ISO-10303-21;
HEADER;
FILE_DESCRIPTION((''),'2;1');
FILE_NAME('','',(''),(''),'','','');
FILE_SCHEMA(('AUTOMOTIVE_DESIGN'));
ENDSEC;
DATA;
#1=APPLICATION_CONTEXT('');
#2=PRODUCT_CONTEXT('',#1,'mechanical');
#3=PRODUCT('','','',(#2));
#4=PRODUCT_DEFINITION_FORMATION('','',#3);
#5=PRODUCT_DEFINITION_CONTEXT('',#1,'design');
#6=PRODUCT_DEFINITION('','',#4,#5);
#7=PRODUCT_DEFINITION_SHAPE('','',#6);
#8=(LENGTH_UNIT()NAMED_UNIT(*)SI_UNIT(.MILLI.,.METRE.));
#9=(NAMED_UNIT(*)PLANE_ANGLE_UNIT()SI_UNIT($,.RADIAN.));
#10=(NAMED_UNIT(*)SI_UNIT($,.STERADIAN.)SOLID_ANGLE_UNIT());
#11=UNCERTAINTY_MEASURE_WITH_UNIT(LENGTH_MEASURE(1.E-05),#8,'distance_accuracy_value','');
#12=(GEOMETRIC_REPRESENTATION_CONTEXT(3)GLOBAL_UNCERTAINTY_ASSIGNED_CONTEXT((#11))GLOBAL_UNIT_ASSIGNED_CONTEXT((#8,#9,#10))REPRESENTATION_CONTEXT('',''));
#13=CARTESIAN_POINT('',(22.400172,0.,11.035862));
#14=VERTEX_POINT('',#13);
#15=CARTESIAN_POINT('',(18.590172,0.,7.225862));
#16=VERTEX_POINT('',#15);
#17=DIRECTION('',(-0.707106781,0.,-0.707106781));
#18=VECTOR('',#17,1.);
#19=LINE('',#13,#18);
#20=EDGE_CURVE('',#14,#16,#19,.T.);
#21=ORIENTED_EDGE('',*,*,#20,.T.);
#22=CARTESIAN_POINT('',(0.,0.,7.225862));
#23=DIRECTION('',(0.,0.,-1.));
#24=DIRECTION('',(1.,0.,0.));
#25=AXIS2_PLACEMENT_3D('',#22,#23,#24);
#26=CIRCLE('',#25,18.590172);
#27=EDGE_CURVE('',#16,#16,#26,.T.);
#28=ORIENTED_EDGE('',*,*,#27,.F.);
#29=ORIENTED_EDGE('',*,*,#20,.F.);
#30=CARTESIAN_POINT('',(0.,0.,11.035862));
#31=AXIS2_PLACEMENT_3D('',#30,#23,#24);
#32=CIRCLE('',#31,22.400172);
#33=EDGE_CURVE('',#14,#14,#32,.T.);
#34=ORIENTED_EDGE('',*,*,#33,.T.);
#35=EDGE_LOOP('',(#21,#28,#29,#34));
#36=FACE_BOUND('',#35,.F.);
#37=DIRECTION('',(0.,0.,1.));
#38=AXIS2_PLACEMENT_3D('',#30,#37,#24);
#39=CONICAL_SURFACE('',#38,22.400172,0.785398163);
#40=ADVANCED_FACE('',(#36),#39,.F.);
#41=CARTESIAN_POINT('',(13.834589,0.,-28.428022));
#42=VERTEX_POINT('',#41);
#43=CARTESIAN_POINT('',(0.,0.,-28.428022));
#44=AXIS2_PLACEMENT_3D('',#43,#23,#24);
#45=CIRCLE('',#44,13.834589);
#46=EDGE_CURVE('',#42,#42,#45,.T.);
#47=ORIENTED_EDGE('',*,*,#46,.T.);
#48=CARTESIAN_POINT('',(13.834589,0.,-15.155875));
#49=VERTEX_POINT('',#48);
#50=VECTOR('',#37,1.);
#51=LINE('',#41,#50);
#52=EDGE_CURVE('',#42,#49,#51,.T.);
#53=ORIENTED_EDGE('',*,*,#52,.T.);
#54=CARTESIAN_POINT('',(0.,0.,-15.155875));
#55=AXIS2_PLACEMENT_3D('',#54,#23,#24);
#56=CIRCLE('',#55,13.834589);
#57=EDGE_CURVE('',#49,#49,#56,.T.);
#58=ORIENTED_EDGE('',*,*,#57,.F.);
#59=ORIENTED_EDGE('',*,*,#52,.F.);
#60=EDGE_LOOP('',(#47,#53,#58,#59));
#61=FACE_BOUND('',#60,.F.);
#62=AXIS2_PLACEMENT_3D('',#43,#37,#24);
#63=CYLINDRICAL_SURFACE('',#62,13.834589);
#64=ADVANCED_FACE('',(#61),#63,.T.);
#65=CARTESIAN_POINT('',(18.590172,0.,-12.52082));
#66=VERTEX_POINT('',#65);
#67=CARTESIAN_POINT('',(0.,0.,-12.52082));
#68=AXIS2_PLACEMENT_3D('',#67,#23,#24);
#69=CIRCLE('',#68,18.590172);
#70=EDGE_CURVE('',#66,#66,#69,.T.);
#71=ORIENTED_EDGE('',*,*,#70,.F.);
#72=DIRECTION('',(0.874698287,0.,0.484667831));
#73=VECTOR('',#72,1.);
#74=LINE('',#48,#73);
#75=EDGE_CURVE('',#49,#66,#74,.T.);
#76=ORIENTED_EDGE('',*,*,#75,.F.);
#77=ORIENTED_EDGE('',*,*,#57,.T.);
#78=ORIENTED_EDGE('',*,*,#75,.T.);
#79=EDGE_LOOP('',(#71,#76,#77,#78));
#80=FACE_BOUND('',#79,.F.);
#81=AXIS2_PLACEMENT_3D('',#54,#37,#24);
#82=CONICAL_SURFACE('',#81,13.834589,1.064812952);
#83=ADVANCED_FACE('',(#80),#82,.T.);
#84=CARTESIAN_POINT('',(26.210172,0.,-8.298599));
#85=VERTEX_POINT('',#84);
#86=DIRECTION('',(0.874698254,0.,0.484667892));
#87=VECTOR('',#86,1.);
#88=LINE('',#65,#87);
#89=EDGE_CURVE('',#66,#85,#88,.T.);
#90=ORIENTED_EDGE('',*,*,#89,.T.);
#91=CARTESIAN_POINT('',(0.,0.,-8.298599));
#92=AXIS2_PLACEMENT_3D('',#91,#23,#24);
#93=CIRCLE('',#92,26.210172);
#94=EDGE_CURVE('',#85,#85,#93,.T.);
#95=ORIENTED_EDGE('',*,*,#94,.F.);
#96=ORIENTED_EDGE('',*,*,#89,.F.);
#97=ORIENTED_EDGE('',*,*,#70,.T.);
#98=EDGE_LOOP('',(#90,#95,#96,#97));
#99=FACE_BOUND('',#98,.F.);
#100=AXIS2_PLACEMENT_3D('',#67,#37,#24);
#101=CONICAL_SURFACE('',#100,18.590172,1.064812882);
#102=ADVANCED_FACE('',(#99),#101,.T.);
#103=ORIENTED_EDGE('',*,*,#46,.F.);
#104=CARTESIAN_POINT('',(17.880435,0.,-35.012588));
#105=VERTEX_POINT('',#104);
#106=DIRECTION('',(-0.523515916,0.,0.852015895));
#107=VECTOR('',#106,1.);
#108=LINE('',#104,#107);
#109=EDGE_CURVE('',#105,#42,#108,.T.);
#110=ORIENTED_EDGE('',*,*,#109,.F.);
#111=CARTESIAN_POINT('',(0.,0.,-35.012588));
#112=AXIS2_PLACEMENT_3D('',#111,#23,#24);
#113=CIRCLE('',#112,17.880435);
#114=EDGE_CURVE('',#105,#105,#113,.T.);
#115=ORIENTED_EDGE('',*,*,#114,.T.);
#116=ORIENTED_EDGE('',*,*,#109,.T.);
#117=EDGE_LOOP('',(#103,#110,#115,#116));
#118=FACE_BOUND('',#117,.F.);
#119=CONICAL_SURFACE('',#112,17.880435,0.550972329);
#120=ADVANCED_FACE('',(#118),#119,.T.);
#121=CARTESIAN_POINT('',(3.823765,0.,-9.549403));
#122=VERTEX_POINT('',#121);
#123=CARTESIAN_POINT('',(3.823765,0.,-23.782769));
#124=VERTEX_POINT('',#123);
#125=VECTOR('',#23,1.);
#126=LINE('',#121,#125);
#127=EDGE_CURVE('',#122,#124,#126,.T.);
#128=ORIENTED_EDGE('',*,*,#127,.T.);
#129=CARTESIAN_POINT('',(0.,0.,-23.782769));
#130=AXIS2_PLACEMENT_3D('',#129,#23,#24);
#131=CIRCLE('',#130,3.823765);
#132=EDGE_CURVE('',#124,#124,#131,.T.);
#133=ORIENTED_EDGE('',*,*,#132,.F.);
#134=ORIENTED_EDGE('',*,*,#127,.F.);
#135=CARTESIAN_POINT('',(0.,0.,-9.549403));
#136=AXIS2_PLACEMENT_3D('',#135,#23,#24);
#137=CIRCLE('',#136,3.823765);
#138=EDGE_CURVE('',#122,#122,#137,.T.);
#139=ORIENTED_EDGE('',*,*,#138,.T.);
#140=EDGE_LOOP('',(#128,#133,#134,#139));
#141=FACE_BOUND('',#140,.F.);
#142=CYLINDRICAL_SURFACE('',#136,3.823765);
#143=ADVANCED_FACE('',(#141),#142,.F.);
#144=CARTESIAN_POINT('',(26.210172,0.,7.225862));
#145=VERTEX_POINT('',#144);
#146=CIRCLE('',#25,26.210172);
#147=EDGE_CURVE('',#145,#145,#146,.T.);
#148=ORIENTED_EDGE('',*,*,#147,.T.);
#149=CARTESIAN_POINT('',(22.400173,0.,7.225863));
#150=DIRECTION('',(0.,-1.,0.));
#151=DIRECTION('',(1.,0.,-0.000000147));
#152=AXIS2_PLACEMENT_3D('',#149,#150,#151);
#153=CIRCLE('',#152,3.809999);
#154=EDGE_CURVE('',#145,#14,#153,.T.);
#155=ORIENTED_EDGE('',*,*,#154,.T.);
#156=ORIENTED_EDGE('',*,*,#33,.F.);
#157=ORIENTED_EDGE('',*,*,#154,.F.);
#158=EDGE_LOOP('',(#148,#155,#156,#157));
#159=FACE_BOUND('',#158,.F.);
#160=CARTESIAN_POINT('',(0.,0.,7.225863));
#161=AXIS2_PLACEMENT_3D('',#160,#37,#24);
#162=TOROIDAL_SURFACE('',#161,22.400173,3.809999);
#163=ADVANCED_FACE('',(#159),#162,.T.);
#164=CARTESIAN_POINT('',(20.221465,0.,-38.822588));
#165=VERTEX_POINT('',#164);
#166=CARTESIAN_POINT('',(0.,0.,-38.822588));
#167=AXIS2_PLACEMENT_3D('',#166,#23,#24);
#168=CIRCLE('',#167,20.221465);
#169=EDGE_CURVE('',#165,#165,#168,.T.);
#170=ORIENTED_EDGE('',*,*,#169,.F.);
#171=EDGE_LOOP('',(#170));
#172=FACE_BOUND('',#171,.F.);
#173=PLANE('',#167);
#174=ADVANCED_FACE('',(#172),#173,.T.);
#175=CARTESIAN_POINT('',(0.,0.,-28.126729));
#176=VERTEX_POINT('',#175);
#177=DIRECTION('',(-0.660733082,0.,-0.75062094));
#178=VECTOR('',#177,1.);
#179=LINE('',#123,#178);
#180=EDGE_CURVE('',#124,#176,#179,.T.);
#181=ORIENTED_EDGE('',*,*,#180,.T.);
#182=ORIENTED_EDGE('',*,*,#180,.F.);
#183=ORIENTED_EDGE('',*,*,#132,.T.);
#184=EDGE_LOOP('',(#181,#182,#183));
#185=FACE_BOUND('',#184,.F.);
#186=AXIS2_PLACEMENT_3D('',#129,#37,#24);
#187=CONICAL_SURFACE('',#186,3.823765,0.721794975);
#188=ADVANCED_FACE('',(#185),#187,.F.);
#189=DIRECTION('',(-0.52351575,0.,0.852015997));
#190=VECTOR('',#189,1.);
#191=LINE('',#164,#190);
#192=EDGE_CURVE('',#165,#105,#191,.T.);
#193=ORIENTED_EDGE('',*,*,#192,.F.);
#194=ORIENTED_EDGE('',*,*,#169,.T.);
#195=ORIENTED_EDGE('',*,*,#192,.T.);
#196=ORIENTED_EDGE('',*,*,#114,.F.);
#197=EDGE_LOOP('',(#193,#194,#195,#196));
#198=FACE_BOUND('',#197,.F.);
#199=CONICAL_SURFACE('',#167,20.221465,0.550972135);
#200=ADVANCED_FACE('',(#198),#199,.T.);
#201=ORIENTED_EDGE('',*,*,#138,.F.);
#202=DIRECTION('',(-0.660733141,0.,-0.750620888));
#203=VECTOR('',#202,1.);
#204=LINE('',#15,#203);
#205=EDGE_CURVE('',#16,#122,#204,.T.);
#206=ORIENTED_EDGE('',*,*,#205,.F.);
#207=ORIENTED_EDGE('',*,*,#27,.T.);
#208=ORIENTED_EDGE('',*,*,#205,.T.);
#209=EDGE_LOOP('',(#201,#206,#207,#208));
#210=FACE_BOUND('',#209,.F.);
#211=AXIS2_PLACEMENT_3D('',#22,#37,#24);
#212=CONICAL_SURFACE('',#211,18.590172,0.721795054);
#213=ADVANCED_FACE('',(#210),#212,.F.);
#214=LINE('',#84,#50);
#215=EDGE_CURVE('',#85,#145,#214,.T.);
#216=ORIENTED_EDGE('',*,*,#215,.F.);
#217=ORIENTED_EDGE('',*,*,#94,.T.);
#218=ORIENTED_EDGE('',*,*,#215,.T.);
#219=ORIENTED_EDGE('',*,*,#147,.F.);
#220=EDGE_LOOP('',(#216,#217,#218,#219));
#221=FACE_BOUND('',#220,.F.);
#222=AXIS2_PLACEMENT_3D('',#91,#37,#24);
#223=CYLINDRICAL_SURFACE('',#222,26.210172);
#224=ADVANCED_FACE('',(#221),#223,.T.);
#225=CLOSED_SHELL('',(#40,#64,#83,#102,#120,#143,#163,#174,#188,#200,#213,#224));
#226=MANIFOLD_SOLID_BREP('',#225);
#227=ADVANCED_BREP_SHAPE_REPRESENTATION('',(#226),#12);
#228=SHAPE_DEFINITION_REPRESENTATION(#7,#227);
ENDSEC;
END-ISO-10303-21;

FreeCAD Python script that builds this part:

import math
import FreeCAD as App
import Part
import Sketcher
Q = App.Units.Quantity

doc = App.newDocument("Part")
body = doc.addObject("PartDesign::Body", "Body")

# Sketch on XZ plane
sketch1 = body.newObject("Sketcher::SketchObject", "Sketch")
sketch1.AttachmentSupport = (doc.getObject("XZ_Plane"), [""])
sketch1.MapMode = "FlatFace"
sketch1.addGeometry(Part.LineSegment(App.Vector(0, -38.8, 0), App.Vector(20.2, -38.8, 0)), False)
sketch1.addGeometry(Part.LineSegment(App.Vector(20.2, -38.8, 0), App.Vector(17.9, -35, 0)), False)
sketch1.addGeometry(Part.LineSegment(App.Vector(17.9, -35, 0), App.Vector(13.8, -28.4, 0)), False)
sketch1.addGeometry(Part.LineSegment(App.Vector(13.8, -28.4, 0), App.Vector(13.8, -15.2, 0)), False)
sketch1.addGeometry(Part.LineSegment(App.Vector(13.8, -15.2, 0), App.Vector(18.6, -12.5, 0)), False)
sketch1.addGeometry(Part.LineSegment(App.Vector(18.6, -12.5, 0), App.Vector(26.2, -8.3, 0)), False)
sketch1.addGeometry(Part.LineSegment(App.Vector(26.2, -8.3, 0), App.Vector(26.2, 7.2, 0)), False)
sketch1.addGeometry(Part.ArcOfCircle(Part.Circle(App.Vector(22.4, 7.2, 0), App.Vector(0, 0, 1), 3.8), math.radians(0), math.radians(90)), False)
sketch1.addGeometry(Part.LineSegment(App.Vector(22.4, 11, 0), App.Vector(18.6, 7.2, 0)), False)
sketch1.addGeometry(Part.LineSegment(App.Vector(18.6, 7.2, 0), App.Vector(3.8, -9.5, 0)), False)
sketch1.addGeometry(Part.LineSegment(App.Vector(3.8, -9.5, 0), App.Vector(3.8, -23.8, 0)), False)
sketch1.addGeometry(Part.LineSegment(App.Vector(3.8, -23.8, 0), App.Vector(0, -28.1, 0)), False)
sketch1.addGeometry(Part.LineSegment(App.Vector(0, -28.1, 0), App.Vector(0, -38.8, 0)), False)
sketch1.addConstraint(Sketcher.Constraint("Coincident", 0, 2, 1, 1))
sketch1.addConstraint(Sketcher.Constraint("Coincident", 1, 2, 2, 1))
sketch1.addConstraint(Sketcher.Constraint("Coincident", 2, 2, 3, 1))
sketch1.addConstraint(Sketcher.Constraint("Coincident", 3, 2, 4, 1))
sketch1.addConstraint(Sketcher.Constraint("Coincident", 4, 2, 5, 1))
sketch1.addConstraint(Sketcher.Constraint("Coincident", 5, 2, 6, 1))
sketch1.addConstraint(Sketcher.Constraint("Tangent", 6, 2, 7, 1))
sketch1.addConstraint(Sketcher.Constraint("Coincident", 7, 2, 8, 1))
sketch1.addConstraint(Sketcher.Constraint("Coincident", 8, 2, 9, 1))
sketch1.addConstraint(Sketcher.Constraint("Coincident", 9, 2, 10, 1))
sketch1.addConstraint(Sketcher.Constraint("Coincident", 10, 2, 11, 1))
sketch1.addConstraint(Sketcher.Constraint("Coincident", 11, 2, 12, 1))
sketch1.addConstraint(Sketcher.Constraint("Coincident", 12, 2, 0, 1))
sketch1.addConstraint(Sketcher.Constraint("Horizontal", 0))
sketch1.addConstraint(Sketcher.Constraint("Vertical", 3))
sketch1.addConstraint(Sketcher.Constraint("Vertical", 6))
sketch1.addConstraint(Sketcher.Constraint("Vertical", 10))
sketch1.addConstraint(Sketcher.Constraint("Vertical", 12))
sketch1.addConstraint(Sketcher.Constraint("PointOnObject", 11, 2, -2))
sketch1.addConstraint(Sketcher.Constraint("Parallel", 1, 2))
sketch1.addConstraint(Sketcher.Constraint("Parallel", 4, 5))
sketch1.addConstraint(Sketcher.Constraint("Parallel", 9, 11))
sketch1.addConstraint(Sketcher.Constraint("Horizontal", 6, 2, 8, 2))
sketch1.addConstraint(Sketcher.Constraint("Vertical", 4, 2, 8, 2))
sketch1.addConstraint(Sketcher.Constraint("Radius", 7, Q("0.15 in")))
sketch1.addConstraint(Sketcher.Constraint("Angle", 8, Q("-135 deg")))
sketch1.addConstraint(Sketcher.Constraint("DistanceX", 4, 2, 5, 2, Q("0.3 in")))
sketch1.addConstraint(Sketcher.Constraint("DistanceY", 0, 2, 1, 2, Q("0.15 in")))
sketch1.addConstraint(Sketcher.Constraint("DistanceY", 6, 1, 6, 2, Q("15.524461 mm")))
sketch1.addConstraint(Sketcher.Constraint("DistanceY", 12, 2, 12, 1, Q("10.695859 mm")))
sketch1.addConstraint(Sketcher.Constraint("DistanceY", 5, 2, -1, 1, Q("8.298599 mm")))
sketch1.addConstraint(Sketcher.Constraint("DistanceY", 2, 2, 4, 2, Q("15.907202 mm")))
sketch1.addConstraint(Sketcher.Constraint("Distance", 2, Q("7.72822 mm")))
sketch1.addConstraint(Sketcher.Constraint("Distance", 9, Q("22.348519 mm")))
sketch1.addConstraint(Sketcher.Constraint("DistanceX", 0, 1, 0, 2, Q("20.221465 mm")))
sketch1.addConstraint(Sketcher.Constraint("DistanceY", 3, 1, 3, 2, Q("13.272147 mm")))
sketch1.addConstraint(Sketcher.Constraint("DistanceY", 10, 2, 10, 1, Q("14.233366 mm")))
sketch1.addConstraint(Sketcher.Constraint("DistanceY", 0, 2, -1, 1, Q("38.822588 mm")))
sketch1.addConstraint(Sketcher.Constraint("DistanceX", -1, 1, 2, 2, Q("13.834589 mm")))
revolution = body.newObject("PartDesign::Revolution", "Revolution")
revolution.Profile = sketch1
revolution.ReferenceAxis = (sketch1, ["V_Axis"])
revolution.Angle = 360

doc.recompute()
